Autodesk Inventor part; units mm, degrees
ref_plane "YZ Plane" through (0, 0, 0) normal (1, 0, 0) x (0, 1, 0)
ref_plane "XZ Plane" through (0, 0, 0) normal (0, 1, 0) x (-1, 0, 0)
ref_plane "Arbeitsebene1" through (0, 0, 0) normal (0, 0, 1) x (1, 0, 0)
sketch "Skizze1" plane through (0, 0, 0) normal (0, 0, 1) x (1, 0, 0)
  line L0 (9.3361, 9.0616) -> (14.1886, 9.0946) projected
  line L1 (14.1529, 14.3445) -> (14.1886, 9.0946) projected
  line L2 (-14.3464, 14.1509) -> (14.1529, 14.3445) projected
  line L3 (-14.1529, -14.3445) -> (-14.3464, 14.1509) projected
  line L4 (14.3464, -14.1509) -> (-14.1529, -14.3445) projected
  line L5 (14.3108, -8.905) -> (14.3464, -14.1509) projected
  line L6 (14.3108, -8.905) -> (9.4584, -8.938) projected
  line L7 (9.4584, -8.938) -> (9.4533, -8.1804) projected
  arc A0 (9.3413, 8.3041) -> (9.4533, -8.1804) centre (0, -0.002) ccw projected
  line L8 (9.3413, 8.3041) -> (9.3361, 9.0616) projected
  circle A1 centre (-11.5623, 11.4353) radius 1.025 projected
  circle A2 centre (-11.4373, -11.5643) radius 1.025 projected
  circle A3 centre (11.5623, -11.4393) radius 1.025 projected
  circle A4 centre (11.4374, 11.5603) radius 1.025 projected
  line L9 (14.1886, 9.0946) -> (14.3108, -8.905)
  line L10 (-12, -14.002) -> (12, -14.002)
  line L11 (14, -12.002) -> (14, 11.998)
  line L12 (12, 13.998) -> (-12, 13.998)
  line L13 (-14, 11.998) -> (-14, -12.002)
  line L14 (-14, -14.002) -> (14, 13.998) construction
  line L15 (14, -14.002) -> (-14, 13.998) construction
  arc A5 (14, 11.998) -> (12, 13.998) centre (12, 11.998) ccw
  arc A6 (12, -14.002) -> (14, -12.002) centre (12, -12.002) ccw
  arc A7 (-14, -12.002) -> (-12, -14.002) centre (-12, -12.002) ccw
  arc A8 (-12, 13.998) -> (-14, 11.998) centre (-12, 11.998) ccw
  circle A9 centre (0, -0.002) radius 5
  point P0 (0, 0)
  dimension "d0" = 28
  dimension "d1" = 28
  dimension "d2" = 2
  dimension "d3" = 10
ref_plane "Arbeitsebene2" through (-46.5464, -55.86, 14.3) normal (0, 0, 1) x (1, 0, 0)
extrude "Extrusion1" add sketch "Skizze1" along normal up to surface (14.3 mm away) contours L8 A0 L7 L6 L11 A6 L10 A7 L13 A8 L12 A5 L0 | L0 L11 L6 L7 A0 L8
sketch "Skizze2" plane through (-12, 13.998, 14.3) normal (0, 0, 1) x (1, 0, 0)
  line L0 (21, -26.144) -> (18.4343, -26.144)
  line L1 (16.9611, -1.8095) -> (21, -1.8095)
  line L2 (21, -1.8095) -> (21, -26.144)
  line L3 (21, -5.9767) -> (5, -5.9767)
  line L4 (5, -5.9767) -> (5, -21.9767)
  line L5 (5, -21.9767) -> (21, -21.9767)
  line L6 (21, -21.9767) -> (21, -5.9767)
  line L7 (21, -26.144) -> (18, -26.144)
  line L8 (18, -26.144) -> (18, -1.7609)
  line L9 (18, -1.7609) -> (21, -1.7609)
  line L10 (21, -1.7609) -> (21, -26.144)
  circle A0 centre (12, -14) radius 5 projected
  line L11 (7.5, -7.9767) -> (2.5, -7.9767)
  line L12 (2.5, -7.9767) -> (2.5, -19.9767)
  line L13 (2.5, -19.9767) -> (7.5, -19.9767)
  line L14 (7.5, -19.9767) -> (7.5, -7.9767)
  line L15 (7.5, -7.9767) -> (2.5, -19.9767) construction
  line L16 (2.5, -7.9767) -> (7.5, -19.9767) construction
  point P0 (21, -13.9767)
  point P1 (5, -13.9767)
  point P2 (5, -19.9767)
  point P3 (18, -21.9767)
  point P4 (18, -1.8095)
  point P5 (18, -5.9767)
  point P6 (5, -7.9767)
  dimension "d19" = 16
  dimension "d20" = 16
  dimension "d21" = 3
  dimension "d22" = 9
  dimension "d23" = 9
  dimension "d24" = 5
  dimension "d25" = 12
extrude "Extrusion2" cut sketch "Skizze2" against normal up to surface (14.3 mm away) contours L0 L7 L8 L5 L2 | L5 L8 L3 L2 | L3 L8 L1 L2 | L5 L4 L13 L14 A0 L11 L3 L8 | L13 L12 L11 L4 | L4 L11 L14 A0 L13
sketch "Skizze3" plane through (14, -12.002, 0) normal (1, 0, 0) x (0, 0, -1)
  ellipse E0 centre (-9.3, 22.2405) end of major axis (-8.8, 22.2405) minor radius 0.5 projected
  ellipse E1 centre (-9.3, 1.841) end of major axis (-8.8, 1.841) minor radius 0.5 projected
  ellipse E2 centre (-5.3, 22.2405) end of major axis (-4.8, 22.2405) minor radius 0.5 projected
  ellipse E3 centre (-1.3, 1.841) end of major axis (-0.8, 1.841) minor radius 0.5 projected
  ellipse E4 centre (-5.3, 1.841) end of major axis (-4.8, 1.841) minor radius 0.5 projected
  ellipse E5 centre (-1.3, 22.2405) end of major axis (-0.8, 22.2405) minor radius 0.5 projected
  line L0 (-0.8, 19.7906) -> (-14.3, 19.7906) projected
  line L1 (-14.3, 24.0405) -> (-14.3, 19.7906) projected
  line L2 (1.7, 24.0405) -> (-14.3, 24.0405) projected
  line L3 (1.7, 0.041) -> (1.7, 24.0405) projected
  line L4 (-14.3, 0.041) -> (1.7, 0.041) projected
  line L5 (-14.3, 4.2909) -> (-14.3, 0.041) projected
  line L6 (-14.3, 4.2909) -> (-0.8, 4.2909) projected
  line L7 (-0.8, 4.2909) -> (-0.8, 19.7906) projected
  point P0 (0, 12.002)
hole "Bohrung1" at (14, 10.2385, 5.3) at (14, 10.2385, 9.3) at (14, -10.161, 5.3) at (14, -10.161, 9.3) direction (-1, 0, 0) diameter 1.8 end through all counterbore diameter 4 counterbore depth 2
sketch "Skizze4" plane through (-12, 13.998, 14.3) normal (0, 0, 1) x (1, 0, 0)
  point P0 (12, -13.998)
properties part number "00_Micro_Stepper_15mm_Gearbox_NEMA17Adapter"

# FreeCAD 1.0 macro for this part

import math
import FreeCAD as App
import Part
import Sketcher
from FreeCAD import Vector
Q = App.Units.Quantity

doc = App.newDocument("Part")
body = doc.addObject("PartDesign::Body", "Body")

# Sketch on XY plane
sketch1 = doc.addObject("Sketcher::SketchObject", "Sketch")
body.addObject(sketch1)
sketch1.AttachmentSupport = (doc.XY_Plane, [""])
sketch1.MapMode = "FlatFace"
sketch1.addGeometry([
    Part.LineSegment(Vector(14, -12, 0), Vector(14, 12, 0)),  # 0
    Part.ArcOfCircle(Part.Circle(Vector(12, 12, 0), Vector(0, 0, 1), 2), math.radians(0), math.radians(90)),  # 1
    Part.LineSegment(Vector(12, 14, 0), Vector(-12, 14, 0)),  # 2
    Part.ArcOfCircle(Part.Circle(Vector(-12, 12, 0), Vector(0, 0, 1), 2), math.radians(90), math.radians(180)),  # 3
    Part.LineSegment(Vector(-14, 12, 0), Vector(-14, -12, 0)),  # 4
    Part.ArcOfCircle(Part.Circle(Vector(-12, -12, 0), Vector(0, 0, 1), 2), math.radians(180), math.radians(270)),  # 5
    Part.LineSegment(Vector(-12, -14, 0), Vector(12, -14, 0)),  # 6
    Part.ArcOfCircle(Part.Circle(Vector(12, -12, 0), Vector(0, 0, 1), 2), math.radians(-90), math.radians(0)),  # 7
    Part.Circle(Vector(-11.4, -11.6, 0), Vector(0, 0, 1), 1),  # 8
    Part.Circle(Vector(11.6, -11.4, 0), Vector(0, 0, 1), 1),  # 9
    Part.Circle(Vector(-11.6, 11.4, 0), Vector(0, 0, 1), 1),  # 10
    Part.Circle(Vector(11.4, 11.6, 0), Vector(0, 0, 1), 1),  # 11
    Part.Circle(Vector(0, 0, 0), Vector(0, 0, 1), 5),  # 12
], False)
sketch1.addConstraint([
    Sketcher.Constraint("Tangent", 0, 2, 1, 1),
    Sketcher.Constraint("Tangent", 1, 2, 2, 1),
    Sketcher.Constraint("Tangent", 2, 2, 3, 1),
    Sketcher.Constraint("Tangent", 3, 2, 4, 1),
    Sketcher.Constraint("Tangent", 4, 2, 5, 1),
    Sketcher.Constraint("Tangent", 5, 2, 6, 1),
    Sketcher.Constraint("Tangent", 6, 2, 7, 1),
    Sketcher.Constraint("Tangent", 7, 2, 0, 1),
    Sketcher.Constraint("Vertical", 0),
    Sketcher.Constraint("Horizontal", 2),
    Sketcher.Constraint("Vertical", 4),
    Sketcher.Constraint("Horizontal", 6),
    Sketcher.Constraint("Equal", 1, 3),
    Sketcher.Constraint("Equal", 3, 5),
    Sketcher.Constraint("Equal", 5, 7),
    Sketcher.Constraint("Equal", 8, 9),
    Sketcher.Constraint("Equal", 9, 10),
    Sketcher.Constraint("Equal", 10, 11),
    Sketcher.Constraint("PointOnObject", 12, 3, -2),
    Sketcher.Constraint("Equal", 6, 0),
    Sketcher.Constraint("Diameter", 12, Q("10 mm")),
    Sketcher.Constraint("Radius", 1, Q("2 mm")),
    Sketcher.Constraint("Diameter", 8, Q("2.05 mm")),
    Sketcher.Constraint("DistanceX", 2, 2, 2, 1, Q("24 mm")),
    Sketcher.Constraint("DistanceX", -1, 1, 1, 3, Q("12 mm")),
    Sketcher.Constraint("DistanceY", 12, 3, 1, 3, Q("12 mm")),
    Sketcher.Constraint("DistanceY", -1, 1, 1, 3, Q("11.998 mm")),
    Sketcher.Constraint("DistanceY", 8, 3, 9, 3, Q("0.125 mm")),
    Sketcher.Constraint("DistanceX", 10, 3, 8, 3, Q("0.125 mm")),
    Sketcher.Constraint("DistanceX", 11, 3, 9, 3, Q("0.125 mm")),
    Sketcher.Constraint("DistanceY", 10, 3, 11, 3, Q("0.125 mm")),
    Sketcher.Constraint("DistanceX", 8, 3, -1, 1, Q("11.4373 mm")),
    Sketcher.Constraint("DistanceY", 8, 3, -1, 1, Q("11.5643 mm")),
    Sketcher.Constraint("DistanceX", -1, 1, 9, 3, Q("11.5623 mm")),
    Sketcher.Constraint("DistanceY", -1, 1, 10, 3, Q("11.4353 mm")),
])
pad1 = doc.addObject("PartDesign::Pad", "Pad")
body.addObject(pad1)
pad1.Profile = sketch1
pad1.Length = 14.3

# Sketch on XY plane
sketch2 = doc.addObject("Sketcher::SketchObject", "Sketch001")
body.addObject(sketch2)
sketch2.AttachmentSupport = (doc.XY_Plane, [""])
sketch2.MapMode = "FlatFace"
sketch2.AttachmentOffset = App.Placement(Vector(0, 0, 14.3), App.Rotation())
sketch2.addGeometry([
    Part.LineSegment(Vector(9, -12.1, 0), Vector(9, 12.2, 0)),  # 0
    Part.LineSegment(Vector(9, 12.2, 0), Vector(6, 12.2, 0)),  # 1
    Part.LineSegment(Vector(6, 12.2, 0), Vector(6, 8, 0)),  # 2
    Part.LineSegment(Vector(6, 8, 0), Vector(-7, 8, 0)),  # 3
    Part.LineSegment(Vector(-7, 8, 0), Vector(-7, 6, 0)),  # 4
    Part.LineSegment(Vector(-7, 6, 0), Vector(-9.5, 6, 0)),  # 5
    Part.LineSegment(Vector(-9.5, 6, 0), Vector(-9.5, -6, 0)),  # 6
    Part.LineSegment(Vector(-9.5, -6, 0), Vector(-7, -6, 0)),  # 7
    Part.LineSegment(Vector(-7, -6, 0), Vector(-7, -8, 0)),  # 8
    Part.LineSegment(Vector(-7, -8, 0), Vector(6, -8, 0)),  # 9
    Part.LineSegment(Vector(6, -8, 0), Vector(6, -12.1, 0)),  # 10
    Part.LineSegment(Vector(6, -12.1, 0), Vector(9, -12.1, 0)),  # 11
    Part.Circle(Vector(0, 0, 0), Vector(0, 0, 1), 5),  # 12
], False)
sketch2.addConstraint([
    Sketcher.Constraint("Coincident", 0, 2, 1, 1),
    Sketcher.Constraint("Coincident", 1, 2, 2, 1),
    Sketcher.Constraint("Coincident", 2, 2, 3, 1),
    Sketcher.Constraint("Coincident", 3, 2, 4, 1),
    Sketcher.Constraint("Coincident", 4, 2, 5, 1),
    Sketcher.Constraint("Coincident", 5, 2, 6, 1),
    Sketcher.Constraint("Coincident", 6, 2, 7, 1),
    Sketcher.Constraint("Coincident", 7, 2, 8, 1),
    Sketcher.Constraint("Coincident", 8, 2, 9, 1),
    Sketcher.Constraint("Coincident", 9, 2, 10, 1),
    Sketcher.Constraint("Coincident", 10, 2, 11, 1),
    Sketcher.Constraint("Coincident", 11, 2, 0, 1),
    Sketcher.Constraint("Vertical", 0),
    Sketcher.Constraint("Horizontal", 1),
    Sketcher.Constraint("Vertical", 2),
    Sketcher.Constraint("Horizontal", 3),
    Sketcher.Constraint("Vertical", 4),
    Sketcher.Constraint("Horizontal", 5),
    Sketcher.Constraint("Vertical", 6),
    Sketcher.Constraint("Horizontal", 7),
    Sketcher.Constraint("Vertical", 8),
    Sketcher.Constraint("Horizontal", 9),
    Sketcher.Constraint("Vertical", 10),
    Sketcher.Constraint("Horizontal", 11),
    Sketcher.Constraint("PointOnObject", 12, 3, -2),
    Sketcher.Constraint("Vertical", 4, 2, 7, 2),
    Sketcher.Constraint("Vertical", 2, 2, 9, 2),
    Sketcher.Constraint("Equal", 4, 8),
    Sketcher.Constraint("Equal", 2, 10),
    Sketcher.Constraint("Diameter", 12, Q("10 mm")),
    Sketcher.Constraint("DistanceX", 1, 2, 1, 1, Q("3 mm")),
    Sketcher.Constraint("DistanceY", 6, 2, 6, 1, Q("12 mm")),
    Sketcher.Constraint("DistanceX", -1, 1, 0, 2, Q("9 mm")),
    Sketcher.Constraint("DistanceX", 3, 2, 0, 2, Q("16 mm")),
    Sketcher.Constraint("DistanceY", 9, 2, 2, 2, Q("16 mm")),
    Sketcher.Constraint("DistanceX", 5, 2, 5, 1, Q("2.5 mm")),
    Sketcher.Constraint("DistanceY", 0, 1, 0, 2, Q("24.3345 mm")),
    Sketcher.Constraint("DistanceY", 12, 3, -1, 1, Q("0.002 mm")),
    Sketcher.Constraint("DistanceY", 10, 2, -1, 1, Q("12.146 mm")),
])
pocket1 = doc.addObject("PartDesign::Pocket", "Pocket")
body.addObject(pocket1)
pocket1.Profile = sketch2
pocket1.Length = 14.3

# Sketch on YZ plane
sketch3 = doc.addObject("Sketcher::SketchObject", "Sketch002")
body.addObject(sketch3)
sketch3.AttachmentSupport = (doc.YZ_Plane, [""])
sketch3.MapMode = "FlatFace"
sketch3.AttachmentOffset = App.Placement(Vector(0, 0, 14), App.Rotation())
sketch3.addGeometry([
    Part.Circle(Vector(10.2, 5.3, 0), Vector(0, 0, 1), 0.9),
    Part.Circle(Vector(10.2, 9.3, 0), Vector(0, 0, 1), 0.9),
    Part.Circle(Vector(-10.2, 5.3, 0), Vector(0, 0, 1), 0.9),
    Part.Circle(Vector(-10.2, 9.3, 0), Vector(0, 0, 1), 0.9),
], False)
sketch3.addConstraint([
    Sketcher.Constraint("Equal", 0, 1),
    Sketcher.Constraint("Equal", 1, 2),
    Sketcher.Constraint("Equal", 2, 3),
    Sketcher.Constraint("Horizontal", 0, 3, 2, 3),
    Sketcher.Constraint("Horizontal", 1, 3, 3, 3),
    Sketcher.Constraint("Vertical", 0, 3, 1, 3),
    Sketcher.Constraint("Vertical", 2, 3, 3, 3),
    Sketcher.Constraint("Diameter", 0, Q("1.8 mm")),
    Sketcher.Constraint("DistanceY", 0, 3, 1, 3, Q("4 mm")),
    Sketcher.Constraint("DistanceY", -1, 1, 0, 3, Q("5.3 mm")),
    Sketcher.Constraint("DistanceX", 2, 3, -1, 1, Q("10.161 mm")),
    Sketcher.Constraint("DistanceX", -1, 1, 0, 3, Q("10.2385 mm")),
])
doc.recompute()
hole = doc.addObject("PartDesign::Hole", "Hole")
body.addObject(hole)
hole.Profile = sketch3
hole.ThreadType = "None"
hole.Diameter = 1.8
hole.DepthType = "ThroughAll"
hole.HoleCutType = "Counterbore"
hole.HoleCutDiameter = 4
hole.HoleCutDepth = 2

doc.recompute()
